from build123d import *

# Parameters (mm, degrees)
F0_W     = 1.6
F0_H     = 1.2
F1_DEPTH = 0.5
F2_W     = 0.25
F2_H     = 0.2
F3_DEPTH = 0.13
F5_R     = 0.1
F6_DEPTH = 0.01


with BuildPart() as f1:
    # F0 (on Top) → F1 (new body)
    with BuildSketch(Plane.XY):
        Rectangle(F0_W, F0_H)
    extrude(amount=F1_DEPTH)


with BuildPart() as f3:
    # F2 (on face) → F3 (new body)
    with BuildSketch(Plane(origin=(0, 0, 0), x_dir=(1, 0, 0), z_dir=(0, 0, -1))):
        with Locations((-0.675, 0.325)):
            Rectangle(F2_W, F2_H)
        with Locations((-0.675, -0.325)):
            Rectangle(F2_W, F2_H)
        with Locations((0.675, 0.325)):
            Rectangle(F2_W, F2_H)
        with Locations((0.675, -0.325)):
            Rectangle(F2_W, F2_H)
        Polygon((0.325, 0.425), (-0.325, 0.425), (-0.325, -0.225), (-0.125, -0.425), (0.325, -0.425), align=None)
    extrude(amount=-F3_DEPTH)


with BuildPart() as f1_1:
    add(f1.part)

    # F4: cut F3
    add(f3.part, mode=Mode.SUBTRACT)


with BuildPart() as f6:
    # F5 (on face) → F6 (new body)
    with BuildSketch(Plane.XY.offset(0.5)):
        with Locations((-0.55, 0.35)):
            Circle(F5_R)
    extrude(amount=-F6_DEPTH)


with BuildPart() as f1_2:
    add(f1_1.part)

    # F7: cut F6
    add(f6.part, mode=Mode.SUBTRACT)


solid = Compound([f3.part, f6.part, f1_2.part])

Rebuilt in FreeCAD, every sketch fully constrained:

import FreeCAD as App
import Part
import Sketcher
Q = App.Units.Quantity


def add_polygon(sketch, points):
    """Adds a closed chain of lines whose ends are joined by coincident constraints."""
    first, n = sketch.GeometryCount, len(points)
    for a, b in zip(points, points[1:] + points[:1]):
        sketch.addGeometry(Part.LineSegment(App.Vector(*a, 0), App.Vector(*b, 0)), False)
    for i in range(n):
        sketch.addConstraint(Sketcher.Constraint("Coincident", first + i, 2, first + (i + 1) % n, 1))

doc = App.newDocument("Part")
body = doc.addObject("PartDesign::Body", "Body")

sketch1 = body.newObject("Sketcher::SketchObject", "Sketch")
sketch1.AttachmentSupport = (doc.getObject("XY_Plane"), [""])
sketch1.MapMode = "FlatFace"
add_polygon(sketch1, [(-0.8, 0.6), (-0.8, -0.6), (0.8, -0.6), (0.8, 0.6)])
sketch1.addConstraint([
    Sketcher.Constraint("Vertical", 0),
    Sketcher.Constraint("Horizontal", 1),
    Sketcher.Constraint("Vertical", 2),
    Sketcher.Constraint("Horizontal", 3),
    Sketcher.Constraint("Symmetric", 0, 2, 2, 2, -1, 1),
    Sketcher.Constraint("DistanceX", 1, 1, 1, 2, 1.6),
    Sketcher.Constraint("DistanceY", 0, 2, 0, 1, 1.2),
])
pad1 = body.newObject("PartDesign::Pad", "Pad")
pad1.Profile = sketch1
pad1.Length = 0.5
body2 = doc.addObject("PartDesign::Body", "Body001")
body2.AllowCompound = True

sketch2 = body2.newObject("Sketcher::SketchObject", "Sketch001")
sketch2.AttachmentSupport = (doc.getObject("XY_Plane001"), [""])
sketch2.MapMode = "FlatFace"
add_polygon(sketch2, [(-0.8, -0.425), (-0.8, -0.225), (-0.55, -0.225), (-0.55, -0.425)])
add_polygon(sketch2, [(-0.8, 0.225), (-0.8, 0.425), (-0.55, 0.425), (-0.55, 0.225)])
add_polygon(sketch2, [(0.55, -0.425), (0.55, -0.225), (0.8, -0.225), (0.8, -0.425)])
add_polygon(sketch2, [(0.55, 0.225), (0.55, 0.425), (0.8, 0.425), (0.8, 0.225)])
add_polygon(sketch2, [(0.325, -0.425), (-0.325, -0.425), (-0.325, 0.225), (-0.125, 0.425), (0.325, 0.425)])
sketch2.addConstraint([
    Sketcher.Constraint("Vertical", 0),
    Sketcher.Constraint("Horizontal", 1),
    Sketcher.Constraint("Vertical", 2),
    Sketcher.Constraint("Horizontal", 3),
    Sketcher.Constraint("Vertical", 4),
    Sketcher.Constraint("Horizontal", 5),
    Sketcher.Constraint("Vertical", 6),
    Sketcher.Constraint("Horizontal", 7),
    Sketcher.Constraint("Vertical", 8),
    Sketcher.Constraint("Horizontal", 9),
    Sketcher.Constraint("Vertical", 10),
    Sketcher.Constraint("Horizontal", 11),
    Sketcher.Constraint("Vertical", 12),
    Sketcher.Constraint("Horizontal", 13),
    Sketcher.Constraint("Vertical", 14),
    Sketcher.Constraint("Horizontal", 15),
    Sketcher.Constraint("Horizontal", 16),
    Sketcher.Constraint("Vertical", 17),
    Sketcher.Constraint("Horizontal", 19),
    Sketcher.Constraint("Vertical", 20),
    Sketcher.Constraint("Symmetric", 6, 2, 8, 2, -1, 1),
    Sketcher.Constraint("Symmetric", 4, 2, 10, 2, -1, 1),
    Sketcher.Constraint("Symmetric", 2, 2, 12, 2, -1, 1),
    Sketcher.Constraint("Symmetric", 0, 2, 14, 2, -1, 1),
    Sketcher.Constraint("Symmetric", 16, 2, 19, 2, -1, 1),
    Sketcher.Constraint("Symmetric", 1, 2, 8, 2, -2),
    Sketcher.Constraint("Symmetric", 3, 2, 10, 2, -2),
    Sketcher.Constraint("Horizontal", 11, 2, 16, 2),
    Sketcher.Constraint("Horizontal", 15, 2, 17, 2),
    Sketcher.Constraint("Equal", 16, 17),
    Sketcher.Constraint("Angle", 18, Q("45 deg")),
    Sketcher.Constraint("DistanceY", 0, 1, 0, 2, 0.2),
    Sketcher.Constraint("DistanceX", 1, 1, 1, 2, 0.25),
    Sketcher.Constraint("DistanceX", 16, 2, 16, 1, 0.65),
    Sketcher.Constraint("DistanceX", 0, 2, -1, 1, 0.8),
])
pad2 = body2.newObject("PartDesign::Pad", "Pad001")
pad2.Profile = sketch2
pad2.Length = 0.13
doc.recompute()

body3 = doc.addObject("PartDesign::Body", "Body002")
body3.BaseFeature = body2
boolean = body.newObject("PartDesign::Boolean", "Boolean")
boolean.Type = "Cut"
boolean.addObjects([body3])
doc.recompute()
body4 = doc.addObject("PartDesign::Body", "Body003")

sketch3 = body4.newObject("Sketcher::SketchObject", "Sketch002")
sketch3.AttachmentSupport = (doc.getObject("XY_Plane003"), [""])
sketch3.MapMode = "FlatFace"
sketch3.AttachmentOffset = App.Placement(App.Vector(0, 0, 0.5), App.Rotation())
sketch3.addGeometry(Part.Circle(App.Vector(-0.55, 0.35, 0), App.Vector(0, 0, 1), 0.1), False)
sketch3.addConstraint([
    Sketcher.Constraint("Diameter", 0, 0.2),
    Sketcher.Constraint("DistanceX", 0, 3, -1, 1, 0.55),
    Sketcher.Constraint("DistanceY", -1, 1, 0, 3, 0.35),
])
pad3 = body4.newObject("PartDesign::Pad", "Pad002")
pad3.Profile = sketch3
pad3.Length = 0.01
pad3.Reversed = True
doc.recompute()

body5 = doc.addObject("PartDesign::Body", "Body004")
body5.BaseFeature = body4
boolean2 = body.newObject("PartDesign::Boolean", "Boolean001")
boolean2.Type = "Cut"
boolean2.addObjects([body5])
doc.recompute()

doc.recompute()
